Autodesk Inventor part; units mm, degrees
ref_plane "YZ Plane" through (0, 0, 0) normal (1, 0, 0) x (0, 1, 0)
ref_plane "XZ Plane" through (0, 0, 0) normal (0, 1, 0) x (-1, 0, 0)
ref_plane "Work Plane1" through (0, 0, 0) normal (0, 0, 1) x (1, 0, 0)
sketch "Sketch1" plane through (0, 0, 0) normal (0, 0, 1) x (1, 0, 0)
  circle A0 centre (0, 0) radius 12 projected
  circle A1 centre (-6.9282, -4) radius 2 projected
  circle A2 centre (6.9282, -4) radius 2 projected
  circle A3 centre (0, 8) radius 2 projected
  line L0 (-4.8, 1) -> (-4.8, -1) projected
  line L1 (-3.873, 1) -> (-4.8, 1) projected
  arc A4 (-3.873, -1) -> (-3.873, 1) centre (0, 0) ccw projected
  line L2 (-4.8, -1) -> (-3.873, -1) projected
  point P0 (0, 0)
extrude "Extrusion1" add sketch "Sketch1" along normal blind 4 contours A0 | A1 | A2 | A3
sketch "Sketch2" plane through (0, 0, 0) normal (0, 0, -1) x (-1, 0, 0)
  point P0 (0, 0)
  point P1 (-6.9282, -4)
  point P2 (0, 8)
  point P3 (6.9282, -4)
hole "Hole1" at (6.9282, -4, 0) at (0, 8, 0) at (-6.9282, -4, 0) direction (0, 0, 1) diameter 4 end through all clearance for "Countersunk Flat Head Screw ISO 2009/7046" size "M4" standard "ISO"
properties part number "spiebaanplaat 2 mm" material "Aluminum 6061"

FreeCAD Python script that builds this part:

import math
import FreeCAD as App
import Part
import Sketcher
Q = App.Units.Quantity

doc = App.newDocument("Part")
params = doc.addObject("Spreadsheet::Sheet", "Params")
for row, (alias, value) in enumerate([
    ("sketch1_diameter", "24 mm"),
    ("sketch1_radius", "4 mm"),
    ("sketch1_height", "2 mm"),
    ("pad1_length", "4 mm"),
    ("sketch2_diameter", "4 mm"),
    ("hole_diameter", "4 mm"),
], start=1):
    params.set(f"A{row}", alias)
    params.set(f"B{row}", "=" + value)
    params.setAlias(f"B{row}", alias)

body = doc.addObject("PartDesign::Body", "Body")

# Sketch on XY plane
sketch1 = body.newObject("Sketcher::SketchObject", "Sketch")
sketch1.AttachmentSupport = (doc.getObject("XY_Plane"), [""])
sketch1.MapMode = "FlatFace"
sketch1.addGeometry(Part.Circle(App.Vector(0, 0, 0), App.Vector(0, 0, 1), 12), False)
sketch1.addGeometry(Part.LineSegment(App.Vector(-4.8, -1, 0), App.Vector(-4.8, 1, 0)), False)
sketch1.addGeometry(Part.LineSegment(App.Vector(-4.8, 1, 0), App.Vector(-3.9, 1, 0)), False)
sketch1.addGeometry(Part.ArcOfCircle(Part.Circle(App.Vector(0, 0, 0), App.Vector(0, 0, 1), 4), math.radians(-166), math.radians(166)), False)
sketch1.addGeometry(Part.LineSegment(App.Vector(-3.9, -1, 0), App.Vector(-4.8, -1, 0)), False)
sketch1.addConstraint(Sketcher.Constraint("Coincident", 1, 2, 2, 1))
sketch1.addConstraint(Sketcher.Constraint("Coincident", 2, 2, 3, 2))
sketch1.addConstraint(Sketcher.Constraint("Coincident", 3, 1, 4, 1))
sketch1.addConstraint(Sketcher.Constraint("Coincident", 4, 2, 1, 1))
sketch1.addConstraint(Sketcher.Constraint("Vertical", 1))
sketch1.addConstraint(Sketcher.Constraint("Horizontal", 2))
sketch1.addConstraint(Sketcher.Constraint("Horizontal", 4))
sketch1.addConstraint(Sketcher.Constraint("Coincident", 0, 3, -1, 1))
sketch1.addConstraint(Sketcher.Constraint("Coincident", 3, 3, -1, 1))
sketch1.addConstraint(Sketcher.Constraint("Vertical", 2, 2, 3, 1))
sketch1.addConstraint(Sketcher.Constraint("Diameter", 0, Q("24 mm")))
sketch1.addConstraint(Sketcher.Constraint("Radius", 3, Q("4 mm")))
sketch1.addConstraint(Sketcher.Constraint("DistanceY", 1, 1, 1, 2, Q("2 mm")))
sketch1.addConstraint(Sketcher.Constraint("DistanceX", 1, 2, -1, 1, Q("4.8 mm")))
sketch1.setExpression("Constraints[10]", "Params.sketch1_diameter")
sketch1.setExpression("Constraints[11]", "Params.sketch1_radius")
sketch1.setExpression("Constraints[12]", "Params.sketch1_height")
pad1 = body.newObject("PartDesign::Pad", "Pad")
pad1.Profile = sketch1
pad1.setExpression("Length", "Params.pad1_length")

# Sketch on XY plane
sketch2 = body.newObject("Sketcher::SketchObject", "Sketch001")
sketch2.AttachmentSupport = (doc.getObject("XY_Plane"), [""])
sketch2.MapMode = "FlatFace"
sketch2.addGeometry(Part.Circle(App.Vector(6.9, -4, 0), App.Vector(0, 0, 1), 2), False)
sketch2.addGeometry(Part.Circle(App.Vector(0, 8, 0), App.Vector(0, 0, 1), 2), False)
sketch2.addGeometry(Part.Circle(App.Vector(-6.9, -4, 0), App.Vector(0, 0, 1), 2), False)
sketch2.addConstraint(Sketcher.Constraint("Equal", 0, 1))
sketch2.addConstraint(Sketcher.Constraint("Equal", 1, 2))
sketch2.addConstraint(Sketcher.Constraint("Symmetric", 0, 3, 2, 3, -2))
sketch2.addConstraint(Sketcher.Constraint("PointOnObject", 1, 3, -2))
sketch2.addConstraint(Sketcher.Constraint("Diameter", 0, Q("4 mm")))
sketch2.addConstraint(Sketcher.Constraint("DistanceY", 0, 3, -1, 1, Q("4 mm")))
sketch2.addConstraint(Sketcher.Constraint("DistanceY", -1, 1, 1, 3, Q("8 mm")))
sketch2.addConstraint(Sketcher.Constraint("DistanceX", -1, 1, 0, 3, Q("6.9282 mm")))
sketch2.setExpression("Constraints[4]", "Params.sketch2_diameter")
doc.recompute()
hole = body.newObject("PartDesign::Hole", "Hole")
hole.Profile = sketch2
hole.ThreadType = "None"
hole.setExpression("Diameter", "Params.hole_diameter")
hole.DepthType = "ThroughAll"
hole.Reversed = True

doc.recompute()
